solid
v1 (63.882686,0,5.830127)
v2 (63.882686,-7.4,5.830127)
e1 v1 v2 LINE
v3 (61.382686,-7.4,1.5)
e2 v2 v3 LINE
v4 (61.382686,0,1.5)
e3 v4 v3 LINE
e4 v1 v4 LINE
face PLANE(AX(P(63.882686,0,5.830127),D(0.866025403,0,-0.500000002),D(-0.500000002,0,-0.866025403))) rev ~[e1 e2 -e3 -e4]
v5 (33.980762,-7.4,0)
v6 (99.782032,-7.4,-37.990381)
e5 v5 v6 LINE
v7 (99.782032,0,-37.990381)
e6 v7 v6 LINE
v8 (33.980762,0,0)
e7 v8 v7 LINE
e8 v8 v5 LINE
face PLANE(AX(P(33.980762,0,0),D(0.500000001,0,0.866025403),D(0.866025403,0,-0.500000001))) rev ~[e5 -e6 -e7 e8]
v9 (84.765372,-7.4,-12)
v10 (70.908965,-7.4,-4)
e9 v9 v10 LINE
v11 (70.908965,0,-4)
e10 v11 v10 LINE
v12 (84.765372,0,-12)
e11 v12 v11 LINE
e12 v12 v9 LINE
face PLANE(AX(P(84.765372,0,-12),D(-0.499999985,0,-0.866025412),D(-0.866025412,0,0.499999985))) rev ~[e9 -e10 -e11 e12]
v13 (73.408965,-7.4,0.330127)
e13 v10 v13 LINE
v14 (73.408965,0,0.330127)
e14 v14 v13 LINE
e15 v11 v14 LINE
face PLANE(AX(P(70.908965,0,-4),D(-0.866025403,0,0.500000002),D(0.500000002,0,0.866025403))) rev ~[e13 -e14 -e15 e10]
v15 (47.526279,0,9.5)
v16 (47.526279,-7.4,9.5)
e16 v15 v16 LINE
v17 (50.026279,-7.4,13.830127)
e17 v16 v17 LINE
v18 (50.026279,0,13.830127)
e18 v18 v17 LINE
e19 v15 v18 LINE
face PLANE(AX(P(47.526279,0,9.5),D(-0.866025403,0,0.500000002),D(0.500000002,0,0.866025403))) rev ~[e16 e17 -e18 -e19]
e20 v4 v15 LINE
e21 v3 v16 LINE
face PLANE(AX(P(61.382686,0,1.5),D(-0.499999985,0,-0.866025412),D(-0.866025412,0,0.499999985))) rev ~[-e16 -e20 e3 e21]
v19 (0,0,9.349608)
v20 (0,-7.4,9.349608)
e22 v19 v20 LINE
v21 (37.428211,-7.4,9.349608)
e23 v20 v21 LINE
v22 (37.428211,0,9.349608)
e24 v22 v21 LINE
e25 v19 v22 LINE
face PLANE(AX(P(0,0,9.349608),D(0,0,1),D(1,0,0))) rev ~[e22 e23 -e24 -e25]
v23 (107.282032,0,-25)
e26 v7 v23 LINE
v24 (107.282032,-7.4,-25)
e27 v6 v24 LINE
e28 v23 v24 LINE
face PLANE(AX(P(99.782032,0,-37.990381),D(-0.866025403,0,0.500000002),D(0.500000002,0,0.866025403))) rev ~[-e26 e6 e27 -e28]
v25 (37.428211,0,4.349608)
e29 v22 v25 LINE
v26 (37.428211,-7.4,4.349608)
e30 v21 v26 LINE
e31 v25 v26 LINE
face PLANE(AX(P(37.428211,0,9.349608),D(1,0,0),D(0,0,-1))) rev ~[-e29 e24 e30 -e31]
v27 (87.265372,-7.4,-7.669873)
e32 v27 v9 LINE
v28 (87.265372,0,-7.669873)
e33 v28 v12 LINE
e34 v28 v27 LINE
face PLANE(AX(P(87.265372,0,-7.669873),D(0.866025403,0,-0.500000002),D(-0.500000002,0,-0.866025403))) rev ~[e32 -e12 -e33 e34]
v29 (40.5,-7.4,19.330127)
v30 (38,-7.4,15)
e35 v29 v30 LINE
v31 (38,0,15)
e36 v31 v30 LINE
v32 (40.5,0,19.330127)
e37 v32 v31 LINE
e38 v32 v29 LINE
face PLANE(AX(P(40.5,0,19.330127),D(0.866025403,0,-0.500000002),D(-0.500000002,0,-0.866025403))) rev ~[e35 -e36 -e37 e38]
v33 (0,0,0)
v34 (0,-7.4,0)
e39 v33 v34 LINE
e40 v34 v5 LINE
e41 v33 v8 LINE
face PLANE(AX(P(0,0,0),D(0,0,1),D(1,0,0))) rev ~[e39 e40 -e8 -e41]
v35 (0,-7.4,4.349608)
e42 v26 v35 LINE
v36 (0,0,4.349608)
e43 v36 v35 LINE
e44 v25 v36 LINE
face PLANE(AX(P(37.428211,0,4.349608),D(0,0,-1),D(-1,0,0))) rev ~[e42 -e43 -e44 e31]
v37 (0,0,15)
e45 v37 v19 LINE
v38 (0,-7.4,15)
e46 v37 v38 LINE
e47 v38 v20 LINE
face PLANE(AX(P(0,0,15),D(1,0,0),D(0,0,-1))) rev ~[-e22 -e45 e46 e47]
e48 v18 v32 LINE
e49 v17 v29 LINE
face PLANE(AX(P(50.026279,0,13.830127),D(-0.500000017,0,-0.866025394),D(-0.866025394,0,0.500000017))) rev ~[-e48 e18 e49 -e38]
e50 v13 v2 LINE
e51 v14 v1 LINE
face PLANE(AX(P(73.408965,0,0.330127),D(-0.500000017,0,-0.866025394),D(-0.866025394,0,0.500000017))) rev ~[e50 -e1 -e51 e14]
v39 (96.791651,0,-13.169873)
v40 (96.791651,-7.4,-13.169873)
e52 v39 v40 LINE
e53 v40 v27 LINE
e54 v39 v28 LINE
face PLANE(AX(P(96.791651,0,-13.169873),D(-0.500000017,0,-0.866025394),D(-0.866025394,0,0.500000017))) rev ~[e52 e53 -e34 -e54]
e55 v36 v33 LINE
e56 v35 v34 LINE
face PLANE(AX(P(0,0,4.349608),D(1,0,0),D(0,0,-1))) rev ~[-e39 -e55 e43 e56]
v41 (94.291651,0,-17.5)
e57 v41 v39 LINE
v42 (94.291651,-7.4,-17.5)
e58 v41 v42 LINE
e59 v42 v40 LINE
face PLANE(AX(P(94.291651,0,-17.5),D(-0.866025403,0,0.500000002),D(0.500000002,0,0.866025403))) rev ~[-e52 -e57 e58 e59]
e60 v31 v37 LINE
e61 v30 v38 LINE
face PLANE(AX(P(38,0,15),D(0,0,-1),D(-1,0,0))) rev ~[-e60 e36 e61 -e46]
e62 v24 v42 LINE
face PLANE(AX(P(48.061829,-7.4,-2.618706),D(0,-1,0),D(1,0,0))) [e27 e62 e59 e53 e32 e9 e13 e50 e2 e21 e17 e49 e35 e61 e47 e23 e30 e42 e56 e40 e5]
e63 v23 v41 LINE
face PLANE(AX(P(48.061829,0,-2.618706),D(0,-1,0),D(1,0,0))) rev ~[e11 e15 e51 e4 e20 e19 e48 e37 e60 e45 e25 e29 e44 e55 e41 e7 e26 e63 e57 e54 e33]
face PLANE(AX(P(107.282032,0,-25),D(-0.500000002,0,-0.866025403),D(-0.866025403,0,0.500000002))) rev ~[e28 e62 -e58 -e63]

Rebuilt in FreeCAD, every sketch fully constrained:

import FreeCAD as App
import Part
import Sketcher
from FreeCAD import Vector
Q = App.Units.Quantity

doc = App.newDocument("Part")
body = doc.addObject("PartDesign::Body", "Body")

# Sketch on XZ plane
sketch1 = body.newObject("Sketcher::SketchObject", "Sketch")
sketch1.AttachmentSupport = (doc.getObject("XZ_Plane"), [""])
sketch1.MapMode = "FlatFace"
sketch1.addGeometry([
    Part.LineSegment(Vector(38, 15, 0), Vector(0, 15, 0)),  # 0
    Part.LineSegment(Vector(0, 15, 0), Vector(0, 9.3, 0)),  # 1
    Part.LineSegment(Vector(0, 9.3, 0), Vector(37.4, 9.3, 0)),  # 2
    Part.LineSegment(Vector(37.4, 9.3, 0), Vector(37.4, 4.3, 0)),  # 3
    Part.LineSegment(Vector(37.4, 4.3, 0), Vector(0, 4.3, 0)),  # 4
    Part.LineSegment(Vector(0, 4.3, 0), Vector(0, 0, 0)),  # 5
    Part.LineSegment(Vector(0, 0, 0), Vector(34, 0, 0)),  # 6
    Part.LineSegment(Vector(34, 0, 0), Vector(99.8, -38, 0)),  # 7
    Part.LineSegment(Vector(99.8, -38, 0), Vector(107.3, -25, 0)),  # 8
    Part.LineSegment(Vector(107.3, -25, 0), Vector(94.3, -17.5, 0)),  # 9
    Part.LineSegment(Vector(94.3, -17.5, 0), Vector(96.8, -13.2, 0)),  # 10
    Part.LineSegment(Vector(96.8, -13.2, 0), Vector(87.3, -7.7, 0)),  # 11
    Part.LineSegment(Vector(87.3, -7.7, 0), Vector(84.8, -12, 0)),  # 12
    Part.LineSegment(Vector(84.8, -12, 0), Vector(70.9, -4, 0)),  # 13
    Part.LineSegment(Vector(70.9, -4, 0), Vector(73.4, 0.3, 0)),  # 14
    Part.LineSegment(Vector(73.4, 0.3, 0), Vector(63.9, 5.8, 0)),  # 15
    Part.LineSegment(Vector(63.9, 5.8, 0), Vector(61.4, 1.5, 0)),  # 16
    Part.LineSegment(Vector(61.4, 1.5, 0), Vector(47.5, 9.5, 0)),  # 17
    Part.LineSegment(Vector(47.5, 9.5, 0), Vector(50, 13.8, 0)),  # 18
    Part.LineSegment(Vector(50, 13.8, 0), Vector(40.5, 19.3, 0)),  # 19
    Part.LineSegment(Vector(40.5, 19.3, 0), Vector(38, 15, 0)),  # 20
], False)
sketch1.addConstraint([
    Sketcher.Constraint("Coincident", 0, 2, 1, 1),
    Sketcher.Constraint("Coincident", 1, 2, 2, 1),
    Sketcher.Constraint("Coincident", 2, 2, 3, 1),
    Sketcher.Constraint("Coincident", 3, 2, 4, 1),
    Sketcher.Constraint("Coincident", 4, 2, 5, 1),
    Sketcher.Constraint("Coincident", 5, 2, 6, 1),
    Sketcher.Constraint("Coincident", 6, 2, 7, 1),
    Sketcher.Constraint("Coincident", 7, 2, 8, 1),
    Sketcher.Constraint("Coincident", 8, 2, 9, 1),
    Sketcher.Constraint("Coincident", 9, 2, 10, 1),
    Sketcher.Constraint("Coincident", 10, 2, 11, 1),
    Sketcher.Constraint("Coincident", 11, 2, 12, 1),
    Sketcher.Constraint("Coincident", 12, 2, 13, 1),
    Sketcher.Constraint("Coincident", 13, 2, 14, 1),
    Sketcher.Constraint("Coincident", 14, 2, 15, 1),
    Sketcher.Constraint("Coincident", 15, 2, 16, 1),
    Sketcher.Constraint("Coincident", 16, 2, 17, 1),
    Sketcher.Constraint("Coincident", 17, 2, 18, 1),
    Sketcher.Constraint("Coincident", 18, 2, 19, 1),
    Sketcher.Constraint("Coincident", 19, 2, 20, 1),
    Sketcher.Constraint("Coincident", 20, 2, 0, 1),
    Sketcher.Constraint("Horizontal", 0),
    Sketcher.Constraint("Vertical", 1),
    Sketcher.Constraint("Horizontal", 2),
    Sketcher.Constraint("Vertical", 3),
    Sketcher.Constraint("Horizontal", 4),
    Sketcher.Constraint("Vertical", 5),
    Sketcher.Constraint("Horizontal", 6),
    Sketcher.Constraint("Coincident", 5, 2, -1, 1),
    Sketcher.Constraint("PointOnObject", 0, 2, -2),
    Sketcher.Constraint("Perpendicular", 7, 8),
    Sketcher.Constraint("Perpendicular", 8, 9),
    Sketcher.Constraint("Perpendicular", 9, 10),
    Sketcher.Constraint("Perpendicular", 10, 11),
    Sketcher.Constraint("Perpendicular", 11, 12),
    Sketcher.Constraint("Perpendicular", 12, 13),
    Sketcher.Constraint("Perpendicular", 13, 14),
    Sketcher.Constraint("Perpendicular", 14, 15),
    Sketcher.Constraint("Perpendicular", 15, 16),
    Sketcher.Constraint("Perpendicular", 16, 17),
    Sketcher.Constraint("Perpendicular", 17, 18),
    Sketcher.Constraint("Perpendicular", 18, 19),
    Sketcher.Constraint("Perpendicular", 19, 20),
    Sketcher.Constraint("Equal", 8, 9),
    Sketcher.Constraint("Equal", 10, 12),
    Sketcher.Constraint("Equal", 12, 14),
    Sketcher.Constraint("Equal", 11, 15),
    Sketcher.Constraint("Equal", 14, 16),
    Sketcher.Constraint("Equal", 13, 17),
    Sketcher.Constraint("Equal", 16, 18),
    Sketcher.Constraint("Equal", 15, 19),
    Sketcher.Constraint("Equal", 18, 20),
    Sketcher.Constraint("DistanceX", 0, 2, 0, 1, 38.0),
    Sketcher.Constraint("DistanceY", 3, 2, 3, 1, 5.0),
    Sketcher.Constraint("Angle", 7, Q("-30 deg")),
    Sketcher.Constraint("Distance", 8, 15.0),
    Sketcher.Constraint("Distance", 10, 5.0),
    Sketcher.Constraint("Distance", 11, 11.0),
    Sketcher.Constraint("Distance", 13, 16.0),
    Sketcher.Constraint("DistanceY", -1, 1, 0, 2, 15.0),
    Sketcher.Constraint("DistanceX", 2, 1, 2, 2, 37.428211),
    Sketcher.Constraint("DistanceY", 1, 2, 1, 1, 5.650392),
])
pad1 = body.newObject("PartDesign::Pad", "Pad")
pad1.Profile = sketch1
pad1.Length = 7.4

doc.recompute()
